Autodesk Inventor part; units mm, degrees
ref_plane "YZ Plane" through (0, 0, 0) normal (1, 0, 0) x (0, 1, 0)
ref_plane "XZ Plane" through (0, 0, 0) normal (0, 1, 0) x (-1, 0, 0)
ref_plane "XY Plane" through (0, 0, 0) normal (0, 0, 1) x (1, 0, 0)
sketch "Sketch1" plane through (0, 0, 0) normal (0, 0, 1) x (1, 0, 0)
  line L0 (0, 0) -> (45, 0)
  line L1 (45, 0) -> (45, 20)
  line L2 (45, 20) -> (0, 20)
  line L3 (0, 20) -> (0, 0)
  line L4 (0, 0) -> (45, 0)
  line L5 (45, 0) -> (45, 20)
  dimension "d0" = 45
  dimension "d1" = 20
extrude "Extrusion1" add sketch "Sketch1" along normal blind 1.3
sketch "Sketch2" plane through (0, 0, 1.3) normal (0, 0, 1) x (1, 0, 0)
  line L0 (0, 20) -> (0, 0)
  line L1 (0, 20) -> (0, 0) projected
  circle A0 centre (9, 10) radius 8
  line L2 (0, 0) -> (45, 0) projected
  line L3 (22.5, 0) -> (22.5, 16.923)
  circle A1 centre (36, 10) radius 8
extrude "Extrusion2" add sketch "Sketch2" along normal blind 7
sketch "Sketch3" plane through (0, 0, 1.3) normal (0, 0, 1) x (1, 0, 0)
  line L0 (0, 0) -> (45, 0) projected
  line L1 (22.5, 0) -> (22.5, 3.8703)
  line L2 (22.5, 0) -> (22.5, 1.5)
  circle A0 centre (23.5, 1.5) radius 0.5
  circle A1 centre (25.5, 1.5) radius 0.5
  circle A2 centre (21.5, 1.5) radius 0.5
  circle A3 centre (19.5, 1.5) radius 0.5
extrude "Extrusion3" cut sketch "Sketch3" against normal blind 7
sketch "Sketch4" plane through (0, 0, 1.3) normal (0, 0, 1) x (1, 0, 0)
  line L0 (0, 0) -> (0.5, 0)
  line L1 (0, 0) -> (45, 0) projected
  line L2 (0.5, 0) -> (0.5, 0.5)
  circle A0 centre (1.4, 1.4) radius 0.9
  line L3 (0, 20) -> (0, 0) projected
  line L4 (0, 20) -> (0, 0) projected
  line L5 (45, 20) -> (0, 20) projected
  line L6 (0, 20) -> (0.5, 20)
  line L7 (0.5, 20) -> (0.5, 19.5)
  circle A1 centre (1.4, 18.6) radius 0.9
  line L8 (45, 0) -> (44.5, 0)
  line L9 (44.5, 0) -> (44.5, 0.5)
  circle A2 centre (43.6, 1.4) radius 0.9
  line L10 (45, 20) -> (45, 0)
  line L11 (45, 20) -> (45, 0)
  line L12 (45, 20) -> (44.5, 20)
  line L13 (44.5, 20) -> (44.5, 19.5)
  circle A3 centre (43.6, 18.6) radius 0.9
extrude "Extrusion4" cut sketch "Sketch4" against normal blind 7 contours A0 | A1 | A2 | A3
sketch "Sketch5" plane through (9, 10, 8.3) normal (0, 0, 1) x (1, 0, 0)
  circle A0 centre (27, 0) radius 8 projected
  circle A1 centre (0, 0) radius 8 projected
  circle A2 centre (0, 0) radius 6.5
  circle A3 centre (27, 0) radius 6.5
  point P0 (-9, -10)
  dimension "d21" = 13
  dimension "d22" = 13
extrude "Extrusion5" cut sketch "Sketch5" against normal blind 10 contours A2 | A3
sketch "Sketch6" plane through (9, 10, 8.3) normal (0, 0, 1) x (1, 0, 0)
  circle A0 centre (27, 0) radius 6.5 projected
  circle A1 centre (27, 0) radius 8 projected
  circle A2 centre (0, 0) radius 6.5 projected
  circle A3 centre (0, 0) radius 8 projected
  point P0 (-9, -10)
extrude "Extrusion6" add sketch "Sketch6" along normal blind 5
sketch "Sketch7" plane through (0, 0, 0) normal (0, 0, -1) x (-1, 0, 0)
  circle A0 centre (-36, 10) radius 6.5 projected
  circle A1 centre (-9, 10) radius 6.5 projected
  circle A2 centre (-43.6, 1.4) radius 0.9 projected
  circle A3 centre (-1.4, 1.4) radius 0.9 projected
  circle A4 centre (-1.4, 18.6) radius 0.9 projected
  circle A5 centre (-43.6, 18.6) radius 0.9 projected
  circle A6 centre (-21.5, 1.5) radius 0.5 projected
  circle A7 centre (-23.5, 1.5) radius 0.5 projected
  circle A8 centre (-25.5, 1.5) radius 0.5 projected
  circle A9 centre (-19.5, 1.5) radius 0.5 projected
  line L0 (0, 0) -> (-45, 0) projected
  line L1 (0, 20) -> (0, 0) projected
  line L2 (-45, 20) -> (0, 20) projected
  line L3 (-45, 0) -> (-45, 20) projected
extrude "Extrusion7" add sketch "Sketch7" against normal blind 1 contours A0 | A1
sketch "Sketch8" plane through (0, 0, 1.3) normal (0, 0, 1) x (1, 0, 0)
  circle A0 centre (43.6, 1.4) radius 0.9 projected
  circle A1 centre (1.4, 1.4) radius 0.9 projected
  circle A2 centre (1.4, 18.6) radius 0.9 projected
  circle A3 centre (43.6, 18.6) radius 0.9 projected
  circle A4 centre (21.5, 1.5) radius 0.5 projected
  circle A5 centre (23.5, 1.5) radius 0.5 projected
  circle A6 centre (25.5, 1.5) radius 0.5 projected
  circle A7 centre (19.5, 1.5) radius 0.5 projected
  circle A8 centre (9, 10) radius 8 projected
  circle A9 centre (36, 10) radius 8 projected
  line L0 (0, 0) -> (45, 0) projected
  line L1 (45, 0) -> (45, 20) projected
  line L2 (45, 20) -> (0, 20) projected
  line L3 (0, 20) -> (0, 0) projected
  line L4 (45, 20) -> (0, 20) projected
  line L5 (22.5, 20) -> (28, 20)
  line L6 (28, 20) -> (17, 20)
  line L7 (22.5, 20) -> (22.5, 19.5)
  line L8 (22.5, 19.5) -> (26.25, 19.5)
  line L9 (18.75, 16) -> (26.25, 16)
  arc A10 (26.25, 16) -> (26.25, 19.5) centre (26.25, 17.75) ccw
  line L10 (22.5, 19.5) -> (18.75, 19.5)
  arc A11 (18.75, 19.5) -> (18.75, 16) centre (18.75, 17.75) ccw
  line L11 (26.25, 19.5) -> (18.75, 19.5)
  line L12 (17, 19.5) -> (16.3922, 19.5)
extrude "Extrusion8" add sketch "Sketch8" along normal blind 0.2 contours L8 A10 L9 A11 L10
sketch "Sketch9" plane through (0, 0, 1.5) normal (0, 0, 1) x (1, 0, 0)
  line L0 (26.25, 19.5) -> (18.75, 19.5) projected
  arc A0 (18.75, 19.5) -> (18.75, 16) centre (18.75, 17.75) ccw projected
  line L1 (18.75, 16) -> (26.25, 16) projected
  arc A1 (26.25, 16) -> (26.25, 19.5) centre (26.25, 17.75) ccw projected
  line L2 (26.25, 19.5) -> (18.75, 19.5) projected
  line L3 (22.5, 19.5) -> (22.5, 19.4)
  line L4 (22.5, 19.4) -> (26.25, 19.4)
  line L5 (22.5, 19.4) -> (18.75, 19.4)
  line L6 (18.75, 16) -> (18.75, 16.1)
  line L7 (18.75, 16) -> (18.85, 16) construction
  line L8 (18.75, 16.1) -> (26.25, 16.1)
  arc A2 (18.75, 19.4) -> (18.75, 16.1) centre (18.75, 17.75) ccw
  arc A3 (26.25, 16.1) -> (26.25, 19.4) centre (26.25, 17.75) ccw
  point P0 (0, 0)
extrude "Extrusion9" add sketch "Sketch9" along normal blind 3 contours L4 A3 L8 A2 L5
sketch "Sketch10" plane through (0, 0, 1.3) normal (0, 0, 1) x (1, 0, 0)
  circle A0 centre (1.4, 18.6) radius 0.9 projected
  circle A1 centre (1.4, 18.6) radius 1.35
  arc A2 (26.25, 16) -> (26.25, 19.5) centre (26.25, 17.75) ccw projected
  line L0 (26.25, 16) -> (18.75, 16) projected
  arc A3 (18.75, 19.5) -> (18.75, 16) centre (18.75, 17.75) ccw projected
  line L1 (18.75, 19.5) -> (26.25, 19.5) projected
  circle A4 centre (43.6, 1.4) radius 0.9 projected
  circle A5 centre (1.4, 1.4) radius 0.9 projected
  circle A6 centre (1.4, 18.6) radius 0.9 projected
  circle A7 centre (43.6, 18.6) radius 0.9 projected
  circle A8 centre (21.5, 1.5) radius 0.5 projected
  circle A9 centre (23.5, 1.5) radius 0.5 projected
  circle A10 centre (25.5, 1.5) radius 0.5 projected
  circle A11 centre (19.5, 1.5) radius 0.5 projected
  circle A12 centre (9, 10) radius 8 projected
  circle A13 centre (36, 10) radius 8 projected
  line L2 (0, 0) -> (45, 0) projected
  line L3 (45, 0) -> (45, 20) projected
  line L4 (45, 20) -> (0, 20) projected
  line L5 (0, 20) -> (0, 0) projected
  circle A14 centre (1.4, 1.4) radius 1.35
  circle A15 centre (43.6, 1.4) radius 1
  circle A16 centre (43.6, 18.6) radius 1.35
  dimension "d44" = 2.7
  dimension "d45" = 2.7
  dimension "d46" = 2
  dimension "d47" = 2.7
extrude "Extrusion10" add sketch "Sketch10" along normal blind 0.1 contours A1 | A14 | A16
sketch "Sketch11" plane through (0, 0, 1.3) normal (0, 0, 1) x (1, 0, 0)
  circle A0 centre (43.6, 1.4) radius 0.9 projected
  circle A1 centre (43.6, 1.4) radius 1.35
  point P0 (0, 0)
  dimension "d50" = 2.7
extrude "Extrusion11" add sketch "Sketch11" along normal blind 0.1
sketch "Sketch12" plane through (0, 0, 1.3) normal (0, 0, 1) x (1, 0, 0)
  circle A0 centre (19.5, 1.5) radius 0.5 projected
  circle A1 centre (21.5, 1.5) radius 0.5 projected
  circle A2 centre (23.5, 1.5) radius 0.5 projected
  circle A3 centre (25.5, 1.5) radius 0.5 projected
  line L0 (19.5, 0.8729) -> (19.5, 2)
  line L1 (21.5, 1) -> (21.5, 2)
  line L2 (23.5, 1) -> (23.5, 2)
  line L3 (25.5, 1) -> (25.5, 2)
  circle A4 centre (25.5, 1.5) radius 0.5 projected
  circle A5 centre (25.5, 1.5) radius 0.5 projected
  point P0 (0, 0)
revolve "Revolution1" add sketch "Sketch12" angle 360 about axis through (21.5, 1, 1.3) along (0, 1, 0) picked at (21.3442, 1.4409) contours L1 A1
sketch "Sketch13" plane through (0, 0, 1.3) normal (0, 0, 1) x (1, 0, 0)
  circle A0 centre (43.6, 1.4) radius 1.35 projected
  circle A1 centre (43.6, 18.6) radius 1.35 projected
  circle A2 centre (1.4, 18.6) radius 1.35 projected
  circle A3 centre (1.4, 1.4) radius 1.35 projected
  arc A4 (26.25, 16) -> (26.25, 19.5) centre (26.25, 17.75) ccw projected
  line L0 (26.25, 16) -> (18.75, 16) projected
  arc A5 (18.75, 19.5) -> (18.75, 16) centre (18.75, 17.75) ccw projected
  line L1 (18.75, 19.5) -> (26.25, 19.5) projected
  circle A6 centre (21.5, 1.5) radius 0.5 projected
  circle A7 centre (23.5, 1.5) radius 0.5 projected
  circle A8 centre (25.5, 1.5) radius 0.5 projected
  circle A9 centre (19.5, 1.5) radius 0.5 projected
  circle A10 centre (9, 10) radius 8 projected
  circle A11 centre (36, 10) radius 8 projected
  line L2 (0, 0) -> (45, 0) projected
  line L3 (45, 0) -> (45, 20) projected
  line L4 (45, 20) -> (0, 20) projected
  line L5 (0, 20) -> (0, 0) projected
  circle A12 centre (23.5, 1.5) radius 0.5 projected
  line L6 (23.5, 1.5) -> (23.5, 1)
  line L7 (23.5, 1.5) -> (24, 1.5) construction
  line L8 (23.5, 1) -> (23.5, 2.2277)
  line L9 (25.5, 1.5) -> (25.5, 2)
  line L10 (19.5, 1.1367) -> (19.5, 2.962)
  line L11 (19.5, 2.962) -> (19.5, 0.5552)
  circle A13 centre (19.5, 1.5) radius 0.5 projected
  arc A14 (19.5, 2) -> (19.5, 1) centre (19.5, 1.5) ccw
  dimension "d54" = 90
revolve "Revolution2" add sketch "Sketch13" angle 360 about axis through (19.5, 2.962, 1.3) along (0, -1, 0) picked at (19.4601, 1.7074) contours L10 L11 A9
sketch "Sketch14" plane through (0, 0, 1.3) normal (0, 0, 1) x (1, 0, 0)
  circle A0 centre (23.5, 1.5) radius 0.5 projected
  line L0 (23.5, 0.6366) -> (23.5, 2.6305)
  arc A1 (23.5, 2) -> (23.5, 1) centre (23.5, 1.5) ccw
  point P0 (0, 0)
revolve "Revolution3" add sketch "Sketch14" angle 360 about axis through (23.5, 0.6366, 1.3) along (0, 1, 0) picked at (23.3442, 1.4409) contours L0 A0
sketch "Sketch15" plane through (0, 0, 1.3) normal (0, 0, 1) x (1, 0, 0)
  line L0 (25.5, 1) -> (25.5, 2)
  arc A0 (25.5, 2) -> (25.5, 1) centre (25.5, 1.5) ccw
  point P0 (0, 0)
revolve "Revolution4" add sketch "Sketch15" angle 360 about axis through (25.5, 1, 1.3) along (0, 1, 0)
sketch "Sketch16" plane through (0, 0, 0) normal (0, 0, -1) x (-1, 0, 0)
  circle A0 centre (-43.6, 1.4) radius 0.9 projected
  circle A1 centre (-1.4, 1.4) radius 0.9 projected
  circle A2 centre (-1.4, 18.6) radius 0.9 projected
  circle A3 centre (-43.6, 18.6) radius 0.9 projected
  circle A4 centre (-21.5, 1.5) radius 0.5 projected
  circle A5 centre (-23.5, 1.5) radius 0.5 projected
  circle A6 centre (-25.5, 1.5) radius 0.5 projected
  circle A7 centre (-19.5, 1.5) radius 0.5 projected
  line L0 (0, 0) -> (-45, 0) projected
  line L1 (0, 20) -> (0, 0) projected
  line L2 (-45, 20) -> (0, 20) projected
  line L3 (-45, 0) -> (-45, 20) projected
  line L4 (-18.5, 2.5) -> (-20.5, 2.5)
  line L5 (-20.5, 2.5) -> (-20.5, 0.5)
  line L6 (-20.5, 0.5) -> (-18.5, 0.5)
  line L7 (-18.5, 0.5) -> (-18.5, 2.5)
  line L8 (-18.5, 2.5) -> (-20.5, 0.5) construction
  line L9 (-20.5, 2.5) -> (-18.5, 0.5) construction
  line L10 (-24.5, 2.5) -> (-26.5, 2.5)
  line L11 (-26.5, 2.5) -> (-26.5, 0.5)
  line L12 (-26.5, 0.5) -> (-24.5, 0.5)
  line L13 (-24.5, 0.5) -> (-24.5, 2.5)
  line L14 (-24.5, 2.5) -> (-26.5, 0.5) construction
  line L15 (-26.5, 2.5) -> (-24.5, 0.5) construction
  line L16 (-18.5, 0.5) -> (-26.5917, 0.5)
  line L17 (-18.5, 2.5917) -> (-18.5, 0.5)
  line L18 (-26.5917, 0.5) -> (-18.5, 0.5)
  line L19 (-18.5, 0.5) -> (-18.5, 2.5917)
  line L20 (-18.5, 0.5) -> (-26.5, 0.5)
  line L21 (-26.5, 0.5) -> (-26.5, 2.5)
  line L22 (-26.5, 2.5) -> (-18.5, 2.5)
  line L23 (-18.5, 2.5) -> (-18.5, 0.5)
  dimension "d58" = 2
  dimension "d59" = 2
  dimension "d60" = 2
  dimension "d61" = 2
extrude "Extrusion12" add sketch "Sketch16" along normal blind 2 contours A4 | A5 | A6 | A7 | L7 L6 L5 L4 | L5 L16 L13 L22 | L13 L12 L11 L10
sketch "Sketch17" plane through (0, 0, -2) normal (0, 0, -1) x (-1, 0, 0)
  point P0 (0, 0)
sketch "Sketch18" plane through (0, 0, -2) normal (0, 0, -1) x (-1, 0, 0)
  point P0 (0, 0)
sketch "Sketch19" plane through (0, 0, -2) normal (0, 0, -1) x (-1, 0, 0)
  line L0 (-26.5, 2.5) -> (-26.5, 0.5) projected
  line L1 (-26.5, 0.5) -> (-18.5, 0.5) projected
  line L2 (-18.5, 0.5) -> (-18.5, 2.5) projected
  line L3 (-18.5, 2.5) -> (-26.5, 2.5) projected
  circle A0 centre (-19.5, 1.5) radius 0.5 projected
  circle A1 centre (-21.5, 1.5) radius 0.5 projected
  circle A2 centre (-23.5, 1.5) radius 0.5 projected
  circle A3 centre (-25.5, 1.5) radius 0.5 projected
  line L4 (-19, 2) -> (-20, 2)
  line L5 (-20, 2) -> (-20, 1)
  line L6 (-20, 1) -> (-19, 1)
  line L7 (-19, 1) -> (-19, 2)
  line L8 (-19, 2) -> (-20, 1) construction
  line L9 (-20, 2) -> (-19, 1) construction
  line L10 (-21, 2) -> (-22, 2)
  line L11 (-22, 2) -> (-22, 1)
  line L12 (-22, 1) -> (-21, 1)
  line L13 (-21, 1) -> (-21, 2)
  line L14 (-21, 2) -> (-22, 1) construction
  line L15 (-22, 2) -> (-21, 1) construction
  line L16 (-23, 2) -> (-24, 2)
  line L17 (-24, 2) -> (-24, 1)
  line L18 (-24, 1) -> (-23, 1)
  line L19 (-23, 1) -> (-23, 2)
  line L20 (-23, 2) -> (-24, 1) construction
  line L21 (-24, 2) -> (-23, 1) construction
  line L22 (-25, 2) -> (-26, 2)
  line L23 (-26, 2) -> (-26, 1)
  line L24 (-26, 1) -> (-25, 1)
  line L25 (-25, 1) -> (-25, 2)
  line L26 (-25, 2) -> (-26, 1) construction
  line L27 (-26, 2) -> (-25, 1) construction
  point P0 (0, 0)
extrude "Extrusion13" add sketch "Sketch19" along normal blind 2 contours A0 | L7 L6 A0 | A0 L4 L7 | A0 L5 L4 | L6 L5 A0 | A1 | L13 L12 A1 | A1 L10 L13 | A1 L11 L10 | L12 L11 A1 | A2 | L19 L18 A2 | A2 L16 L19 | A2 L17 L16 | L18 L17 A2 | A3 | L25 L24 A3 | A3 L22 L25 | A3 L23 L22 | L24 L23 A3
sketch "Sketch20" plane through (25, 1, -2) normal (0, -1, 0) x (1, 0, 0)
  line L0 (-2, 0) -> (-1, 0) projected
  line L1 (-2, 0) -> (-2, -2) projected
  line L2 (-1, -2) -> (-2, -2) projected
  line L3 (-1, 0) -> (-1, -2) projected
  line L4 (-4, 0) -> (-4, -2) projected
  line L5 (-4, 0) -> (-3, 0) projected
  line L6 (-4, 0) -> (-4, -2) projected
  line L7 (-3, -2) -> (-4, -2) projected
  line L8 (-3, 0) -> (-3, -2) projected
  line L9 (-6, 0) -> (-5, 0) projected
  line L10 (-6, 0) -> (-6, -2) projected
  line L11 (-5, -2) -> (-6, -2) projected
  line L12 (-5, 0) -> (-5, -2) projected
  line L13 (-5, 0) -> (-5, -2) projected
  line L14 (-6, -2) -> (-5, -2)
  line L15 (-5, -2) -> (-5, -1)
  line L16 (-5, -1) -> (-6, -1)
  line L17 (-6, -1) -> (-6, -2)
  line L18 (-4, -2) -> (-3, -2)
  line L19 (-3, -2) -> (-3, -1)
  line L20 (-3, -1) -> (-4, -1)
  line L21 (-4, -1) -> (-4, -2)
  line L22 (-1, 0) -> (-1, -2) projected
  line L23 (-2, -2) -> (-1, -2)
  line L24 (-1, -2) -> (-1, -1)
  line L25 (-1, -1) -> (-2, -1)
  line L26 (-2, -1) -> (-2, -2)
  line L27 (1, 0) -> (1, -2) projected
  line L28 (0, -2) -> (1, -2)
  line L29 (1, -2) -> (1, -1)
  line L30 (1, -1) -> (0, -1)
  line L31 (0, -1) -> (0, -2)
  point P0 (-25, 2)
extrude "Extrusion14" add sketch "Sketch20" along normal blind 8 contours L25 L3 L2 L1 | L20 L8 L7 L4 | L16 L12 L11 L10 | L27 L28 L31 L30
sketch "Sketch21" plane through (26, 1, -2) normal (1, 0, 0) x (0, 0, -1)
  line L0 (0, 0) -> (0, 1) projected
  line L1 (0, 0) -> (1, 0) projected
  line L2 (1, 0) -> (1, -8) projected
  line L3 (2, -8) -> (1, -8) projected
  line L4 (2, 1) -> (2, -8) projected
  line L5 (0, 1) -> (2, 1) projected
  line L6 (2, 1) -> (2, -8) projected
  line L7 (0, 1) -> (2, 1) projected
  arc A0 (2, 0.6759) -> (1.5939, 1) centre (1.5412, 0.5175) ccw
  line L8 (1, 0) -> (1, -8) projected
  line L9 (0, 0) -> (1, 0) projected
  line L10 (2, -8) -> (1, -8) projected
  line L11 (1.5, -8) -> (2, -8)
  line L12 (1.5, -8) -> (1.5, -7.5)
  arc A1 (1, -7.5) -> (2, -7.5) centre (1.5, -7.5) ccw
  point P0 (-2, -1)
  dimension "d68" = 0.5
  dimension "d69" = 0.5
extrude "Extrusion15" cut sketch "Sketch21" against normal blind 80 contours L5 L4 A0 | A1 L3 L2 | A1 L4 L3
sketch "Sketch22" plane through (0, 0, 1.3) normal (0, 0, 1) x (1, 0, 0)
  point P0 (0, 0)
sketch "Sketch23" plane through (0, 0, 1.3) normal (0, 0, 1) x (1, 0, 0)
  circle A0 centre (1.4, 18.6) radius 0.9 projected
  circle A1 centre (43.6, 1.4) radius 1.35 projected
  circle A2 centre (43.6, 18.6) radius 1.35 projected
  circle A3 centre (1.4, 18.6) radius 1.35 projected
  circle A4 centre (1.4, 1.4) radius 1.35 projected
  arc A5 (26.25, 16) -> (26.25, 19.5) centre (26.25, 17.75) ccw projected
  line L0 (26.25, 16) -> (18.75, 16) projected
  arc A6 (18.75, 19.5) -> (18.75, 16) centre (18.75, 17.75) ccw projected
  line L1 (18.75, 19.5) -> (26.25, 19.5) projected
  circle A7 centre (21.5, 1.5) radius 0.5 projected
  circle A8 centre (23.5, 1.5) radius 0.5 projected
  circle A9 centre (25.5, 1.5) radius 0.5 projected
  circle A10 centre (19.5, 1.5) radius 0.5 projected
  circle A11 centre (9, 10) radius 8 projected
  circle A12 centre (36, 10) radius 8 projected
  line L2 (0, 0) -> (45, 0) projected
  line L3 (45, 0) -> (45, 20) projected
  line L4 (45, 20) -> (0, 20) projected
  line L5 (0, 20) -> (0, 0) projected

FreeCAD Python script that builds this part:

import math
import FreeCAD as App
import Part
import Sketcher

V = App.Vector
Q = App.Units.Quantity


def add_polygon(sketch, points):
    """Adds a closed chain of lines whose ends are joined by coincident constraints."""
    first, n = sketch.GeometryCount, len(points)
    for a, b in zip(points, points[1:] + points[:1]):
        sketch.addGeometry(Part.LineSegment(App.Vector(*a, 0), App.Vector(*b, 0)), False)
    for i in range(n):
        sketch.addConstraint(Sketcher.Constraint("Coincident", first + i, 2, first + (i + 1) % n, 1))

doc = App.newDocument("Part")
body = doc.addObject("PartDesign::Body", "Body")
body.AllowCompound = True

# Sketch on XY plane
sketch1 = body.newObject("Sketcher::SketchObject", "Sketch")
sketch1.AttachmentSupport = (doc.getObject("XY_Plane"), [""])
sketch1.MapMode = "FlatFace"
add_polygon(sketch1, [(0, 20), (0, 0), (45, 0), (45, 20)])  # lines 0-3
sketch1.addConstraint(Sketcher.Constraint("Vertical", 0))
sketch1.addConstraint(Sketcher.Constraint("Horizontal", 1))
sketch1.addConstraint(Sketcher.Constraint("Vertical", 2))
sketch1.addConstraint(Sketcher.Constraint("Horizontal", 3))
sketch1.addConstraint(Sketcher.Constraint("Coincident", 0, 2, -1, 1))
sketch1.addConstraint(Sketcher.Constraint("DistanceX", 1, 1, 1, 2, Q("45 mm")))
sketch1.addConstraint(Sketcher.Constraint("DistanceY", 0, 2, 0, 1, Q("20 mm")))
pad1 = body.newObject("PartDesign::Pad", "Pad")
pad1.Profile = sketch1
pad1.Length = 1.3

# Sketch on XY plane
sketch2 = body.newObject("Sketcher::SketchObject", "Sketch001")
sketch2.AttachmentSupport = (doc.getObject("XY_Plane"), [""])
sketch2.MapMode = "FlatFace"
sketch2.AttachmentOffset = App.Placement(V(0, 0, 1.3), App.Rotation())
sketch2.addGeometry(Part.Circle(V(9, 10, 0), V(0, 0, 1), 8), False)
sketch2.addGeometry(Part.Circle(V(36, 10, 0), V(0, 0, 1), 8), False)
sketch2.addConstraint(Sketcher.Constraint("Equal", 0, 1))
sketch2.addConstraint(Sketcher.Constraint("Horizontal", 0, 3, 1, 3))
sketch2.addConstraint(Sketcher.Constraint("Diameter", 0, Q("16 mm")))
sketch2.addConstraint(Sketcher.Constraint("DistanceX", -1, 1, 0, 3, Q("9 mm")))
sketch2.addConstraint(Sketcher.Constraint("DistanceY", -1, 1, 0, 3, Q("10 mm")))
sketch2.addConstraint(Sketcher.Constraint("DistanceX", -1, 1, 1, 3, Q("36 mm")))
pad2 = body.newObject("PartDesign::Pad", "Pad001")
pad2.Profile = sketch2
pad2.Length = 7

# Sketch on XY plane
sketch3 = body.newObject("Sketcher::SketchObject", "Sketch002")
sketch3.AttachmentSupport = (doc.getObject("XY_Plane"), [""])
sketch3.MapMode = "FlatFace"
sketch3.AttachmentOffset = App.Placement(V(0, 0, 1.3), App.Rotation())
sketch3.addGeometry(Part.Circle(V(23.5, 1.5, 0), V(0, 0, 1), 0.5), False)
sketch3.addGeometry(Part.Circle(V(25.5, 1.5, 0), V(0, 0, 1), 0.5), False)
sketch3.addGeometry(Part.Circle(V(21.5, 1.5, 0), V(0, 0, 1), 0.5), False)
sketch3.addGeometry(Part.Circle(V(19.5, 1.5, 0), V(0, 0, 1), 0.5), False)
sketch3.addConstraint(Sketcher.Constraint("Equal", 0, 1))
sketch3.addConstraint(Sketcher.Constraint("Equal", 1, 2))
sketch3.addConstraint(Sketcher.Constraint("Equal", 2, 3))
sketch3.addConstraint(Sketcher.Constraint("Horizontal", 0, 3, 1, 3))
sketch3.addConstraint(Sketcher.Constraint("Horizontal", 1, 3, 2, 3))
sketch3.addConstraint(Sketcher.Constraint("Horizontal", 2, 3, 3, 3))
sketch3.addConstraint(Sketcher.Constraint("Diameter", 0, Q("1 mm")))
sketch3.addConstraint(Sketcher.Constraint("DistanceX", 0, 3, 1, 3, Q("2 mm")))
sketch3.addConstraint(Sketcher.Constraint("DistanceX", 2, 3, 0, 3, Q("2 mm")))
sketch3.addConstraint(Sketcher.Constraint("DistanceX", 3, 3, 2, 3, Q("2 mm")))
sketch3.addConstraint(Sketcher.Constraint("DistanceX", -1, 1, 0, 3, Q("23.5 mm")))
sketch3.addConstraint(Sketcher.Constraint("DistanceY", -1, 1, 0, 3, Q("1.5 mm")))
pocket1 = body.newObject("PartDesign::Pocket", "Pocket")
pocket1.Profile = sketch3
pocket1.Length = 7

# Sketch on XY plane
sketch4 = body.newObject("Sketcher::SketchObject", "Sketch003")
sketch4.AttachmentSupport = (doc.getObject("XY_Plane"), [""])
sketch4.MapMode = "FlatFace"
sketch4.AttachmentOffset = App.Placement(V(0, 0, 1.3), App.Rotation())
sketch4.addGeometry(Part.Circle(V(1.4, 1.4, 0), V(0, 0, 1), 0.9), False)
sketch4.addGeometry(Part.Circle(V(1.4, 18.6, 0), V(0, 0, 1), 0.9), False)
sketch4.addGeometry(Part.Circle(V(43.6, 1.4, 0), V(0, 0, 1), 0.9), False)
sketch4.addGeometry(Part.Circle(V(43.6, 18.6, 0), V(0, 0, 1), 0.9), False)
sketch4.addConstraint(Sketcher.Constraint("Equal", 0, 1))
sketch4.addConstraint(Sketcher.Constraint("Equal", 1, 2))
sketch4.addConstraint(Sketcher.Constraint("Equal", 2, 3))
sketch4.addConstraint(Sketcher.Constraint("Horizontal", 0, 3, 2, 3))
sketch4.addConstraint(Sketcher.Constraint("Horizontal", 1, 3, 3, 3))
sketch4.addConstraint(Sketcher.Constraint("Vertical", 0, 3, 1, 3))
sketch4.addConstraint(Sketcher.Constraint("Vertical", 2, 3, 3, 3))
sketch4.addConstraint(Sketcher.Constraint("Diameter", 0, Q("1.8 mm")))
sketch4.addConstraint(Sketcher.Constraint("DistanceX", -1, 1, 0, 3, Q("1.4 mm")))
sketch4.addConstraint(Sketcher.Constraint("DistanceY", -1, 1, 0, 3, Q("1.4 mm")))
sketch4.addConstraint(Sketcher.Constraint("DistanceY", -1, 1, 1, 3, Q("18.6 mm")))
sketch4.addConstraint(Sketcher.Constraint("DistanceX", -1, 1, 2, 3, Q("43.6 mm")))
pocket2 = body.newObject("PartDesign::Pocket", "Pocket001")
pocket2.Profile = sketch4
pocket2.Length = 7

# Sketch on XY plane
sketch5 = body.newObject("Sketcher::SketchObject", "Sketch004")
sketch5.AttachmentSupport = (doc.getObject("XY_Plane"), [""])
sketch5.MapMode = "FlatFace"
sketch5.AttachmentOffset = App.Placement(V(0, 0, 8.3), App.Rotation())
sketch5.addGeometry(Part.Circle(V(9, 10, 0), V(0, 0, 1), 6), False)
sketch5.addGeometry(Part.Circle(V(36, 10, 0), V(0, 0, 1), 6), False)
sketch5.addConstraint(Sketcher.Constraint("Equal", 0, 1))
sketch5.addConstraint(Sketcher.Constraint("Horizontal", 0, 3, 1, 3))
sketch5.addConstraint(Sketcher.Constraint("Diameter", 0, Q("13 mm")))
sketch5.addConstraint(Sketcher.Constraint("DistanceX", -1, 1, 0, 3, Q("9 mm")))
sketch5.addConstraint(Sketcher.Constraint("DistanceY", -1, 1, 0, 3, Q("10 mm")))
sketch5.addConstraint(Sketcher.Constraint("DistanceX", -1, 1, 1, 3, Q("36 mm")))
pocket3 = body.newObject("PartDesign::Pocket", "Pocket002")
pocket3.Profile = sketch5
pocket3.Length = 10

# Sketch on XY plane
sketch6 = body.newObject("Sketcher::SketchObject", "Sketch005")
sketch6.AttachmentSupport = (doc.getObject("XY_Plane"), [""])
sketch6.MapMode = "FlatFace"
sketch6.AttachmentOffset = App.Placement(V(0, 0, 8.3), App.Rotation())
sketch6.addGeometry(Part.Circle(V(36, 10, 0), V(0, 0, 1), 8), False)
sketch6.addGeometry(Part.Circle(V(36, 10, 0), V(0, 0, 1), 6), False)
sketch6.addGeometry(Part.Circle(V(9, 10, 0), V(0, 0, 1), 8), False)
sketch6.addGeometry(Part.Circle(V(9, 10, 0), V(0, 0, 1), 6), False)
sketch6.addConstraint(Sketcher.Constraint("Coincident", 1, 3, 0, 3))
sketch6.addConstraint(Sketcher.Constraint("Coincident", 3, 3, 2, 3))
sketch6.addConstraint(Sketcher.Constraint("Equal", 0, 2))
sketch6.addConstraint(Sketcher.Constraint("Equal", 1, 3))
sketch6.addConstraint(Sketcher.Constraint("Horizontal", 1, 3, 2, 3))
sketch6.addConstraint(Sketcher.Constraint("Diameter", 0, Q("16 mm")))
sketch6.addConstraint(Sketcher.Constraint("Diameter", 1, Q("13 mm")))
sketch6.addConstraint(Sketcher.Constraint("DistanceX", -1, 1, 0, 3, Q("36 mm")))
sketch6.addConstraint(Sketcher.Constraint("DistanceY", -1, 1, 0, 3, Q("10 mm")))
sketch6.addConstraint(Sketcher.Constraint("DistanceX", -1, 1, 2, 3, Q("9 mm")))
pad3 = body.newObject("PartDesign::Pad", "Pad002")
pad3.Profile = sketch6
pad3.Length = 5

# Sketch on XY plane
sketch7 = body.newObject("Sketcher::SketchObject", "Sketch006")
sketch7.AttachmentSupport = (doc.getObject("XY_Plane"), [""])
sketch7.MapMode = "FlatFace"
sketch7.addGeometry(Part.Circle(V(36, 10, 0), V(0, 0, 1), 6), False)
sketch7.addGeometry(Part.Circle(V(9, 10, 0), V(0, 0, 1), 6), False)
sketch7.addConstraint(Sketcher.Constraint("Equal", 0, 1))
sketch7.addConstraint(Sketcher.Constraint("Horizontal", 0, 3, 1, 3))
sketch7.addConstraint(Sketcher.Constraint("Diameter", 0, Q("13 mm")))
sketch7.addConstraint(Sketcher.Constraint("DistanceX", -1, 1, 0, 3, Q("36 mm")))
sketch7.addConstraint(Sketcher.Constraint("DistanceY", -1, 1, 0, 3, Q("10 mm")))
sketch7.addConstraint(Sketcher.Constraint("DistanceX", -1, 1, 1, 3, Q("9 mm")))
pad4 = body.newObject("PartDesign::Pad", "Pad003")
pad4.Profile = sketch7
pad4.Length = 1

# Sketch on XY plane
sketch8 = body.newObject("Sketcher::SketchObject", "Sketch007")
sketch8.AttachmentSupport = (doc.getObject("XY_Plane"), [""])
sketch8.MapMode = "FlatFace"
sketch8.AttachmentOffset = App.Placement(V(0, 0, 1.3), App.Rotation())
sketch8.addGeometry(Part.LineSegment(V(26.2, 19.5, 0), V(18.8, 19.5, 0)), False)
sketch8.addGeometry(Part.ArcOfCircle(Part.Circle(V(18.8, 17.8, 0), V(0, 0, 1), 1.8), math.radians(90), math.radians(270)), False)
sketch8.addGeometry(Part.LineSegment(V(18.8, 16, 0), V(26.2, 16, 0)), False)
sketch8.addGeometry(Part.ArcOfCircle(Part.Circle(V(26.2, 17.8, 0), V(0, 0, 1), 1.8), math.radians(-90), math.radians(90)), False)
sketch8.addConstraint(Sketcher.Constraint("Tangent", 0, 2, 1, 1))
sketch8.addConstraint(Sketcher.Constraint("Tangent", 1, 2, 2, 1))
sketch8.addConstraint(Sketcher.Constraint("Tangent", 2, 2, 3, 1))
sketch8.addConstraint(Sketcher.Constraint("Tangent", 3, 2, 0, 1))
sketch8.addConstraint(Sketcher.Constraint("Horizontal", 0))
sketch8.addConstraint(Sketcher.Constraint("Horizontal", 2))
sketch8.addConstraint(Sketcher.Constraint("Radius", 1, Q("1.75 mm")))
sketch8.addConstraint(Sketcher.Constraint("DistanceX", 0, 2, 0, 1, Q("7.5 mm")))
sketch8.addConstraint(Sketcher.Constraint("DistanceY", -1, 1, 1, 2, Q("16 mm")))
sketch8.addConstraint(Sketcher.Constraint("DistanceX", -1, 1, 1, 3, Q("18.75 mm")))
pad5 = body.newObject("PartDesign::Pad", "Pad004")
pad5.Profile = sketch8
pad5.Length = 0.2

# Sketch on XY plane
sketch9 = body.newObject("Sketcher::SketchObject", "Sketch008")
sketch9.AttachmentSupport = (doc.getObject("XY_Plane"), [""])
sketch9.MapMode = "FlatFace"
sketch9.AttachmentOffset = App.Placement(V(0, 0, 1.5), App.Rotation())
sketch9.addGeometry(Part.LineSegment(V(26.2, 19.4, 0), V(18.8, 19.4, 0)), False)
sketch9.addGeometry(Part.ArcOfCircle(Part.Circle(V(18.8, 17.8, 0), V(0, 0, 1), 1.6), math.radians(90), math.radians(270)), False)
sketch9.addGeometry(Part.LineSegment(V(18.8, 16.1, 0), V(26.2, 16.1, 0)), False)
sketch9.addGeometry(Part.ArcOfCircle(Part.Circle(V(26.2, 17.8, 0), V(0, 0, 1), 1.6), math.radians(-90), math.radians(90)), False)
sketch9.addConstraint(Sketcher.Constraint("Tangent", 0, 2, 1, 1))
sketch9.addConstraint(Sketcher.Constraint("Tangent", 1, 2, 2, 1))
sketch9.addConstraint(Sketcher.Constraint("Tangent", 2, 2, 3, 1))
sketch9.addConstraint(Sketcher.Constraint("Tangent", 3, 2, 0, 1))
sketch9.addConstraint(Sketcher.Constraint("Horizontal", 0))
sketch9.addConstraint(Sketcher.Constraint("Horizontal", 2))
sketch9.addConstraint(Sketcher.Constraint("Radius", 1, Q("1.65 mm")))
sketch9.addConstraint(Sketcher.Constraint("DistanceX", 0, 2, 0, 1, Q("7.5 mm")))
sketch9.addConstraint(Sketcher.Constraint("DistanceY", -1, 1, 0, 2, Q("19.4 mm")))
sketch9.addConstraint(Sketcher.Constraint("DistanceX", -1, 1, 1, 3, Q("18.75 mm")))
pad6 = body.newObject("PartDesign::Pad", "Pad005")
pad6.Profile = sketch9
pad6.Length = 3

# Sketch on XY plane
sketch10 = body.newObject("Sketcher::SketchObject", "Sketch009")
sketch10.AttachmentSupport = (doc.getObject("XY_Plane"), [""])
sketch10.MapMode = "FlatFace"
sketch10.AttachmentOffset = App.Placement(V(0, 0, 1.3), App.Rotation())
sketch10.addGeometry(Part.Circle(V(1.4, 18.6, 0), V(0, 0, 1), 1.4), False)
sketch10.addGeometry(Part.Circle(V(1.4, 18.6, 0), V(0, 0, 1), 0.9), False)
sketch10.addGeometry(Part.Circle(V(1.4, 1.4, 0), V(0, 0, 1), 1.4), False)
sketch10.addGeometry(Part.Circle(V(1.4, 1.4, 0), V(0, 0, 1), 0.9), False)
sketch10.addGeometry(Part.Circle(V(43.6, 18.6, 0), V(0, 0, 1), 1.4), False)
sketch10.addGeometry(Part.Circle(V(43.6, 18.6, 0), V(0, 0, 1), 0.9), False)
sketch10.addConstraint(Sketcher.Constraint("Coincident", 1, 3, 0, 3))
sketch10.addConstraint(Sketcher.Constraint("Coincident", 3, 3, 2, 3))
sketch10.addConstraint(Sketcher.Constraint("Coincident", 5, 3, 4, 3))
sketch10.addConstraint(Sketcher.Constraint("Equal", 0, 2))
sketch10.addConstraint(Sketcher.Constraint("Equal", 1, 3))
sketch10.addConstraint(Sketcher.Constraint("Equal", 2, 4))
sketch10.addConstraint(Sketcher.Constraint("Equal", 3, 5))
sketch10.addConstraint(Sketcher.Constraint("Horizontal", 1, 3, 4, 3))
sketch10.addConstraint(Sketcher.Constraint("Vertical", 1, 3, 2, 3))
sketch10.addConstraint(Sketcher.Constraint("Diameter", 0, Q("2.7 mm")))
sketch10.addConstraint(Sketcher.Constraint("Diameter", 1, Q("1.8 mm")))
sketch10.addConstraint(Sketcher.Constraint("DistanceX", -1, 1, 0, 3, Q("1.4 mm")))
sketch10.addConstraint(Sketcher.Constraint("DistanceY", -1, 1, 0, 3, Q("18.6 mm")))
sketch10.addConstraint(Sketcher.Constraint("DistanceY", -1, 1, 2, 3, Q("1.4 mm")))
sketch10.addConstraint(Sketcher.Constraint("DistanceX", -1, 1, 4, 3, Q("43.6 mm")))
pad7 = body.newObject("PartDesign::Pad", "Pad006")
pad7.Profile = sketch10
pad7.Length = 0.1

# Sketch on XY plane
sketch11 = body.newObject("Sketcher::SketchObject", "Sketch010")
sketch11.AttachmentSupport = (doc.getObject("XY_Plane"), [""])
sketch11.MapMode = "FlatFace"
sketch11.AttachmentOffset = App.Placement(V(0, 0, 1.3), App.Rotation())
sketch11.addGeometry(Part.Circle(V(43.6, 1.4, 0), V(0, 0, 1), 1.4), False)
sketch11.addGeometry(Part.Circle(V(43.6, 1.4, 0), V(0, 0, 1), 0.9), False)
sketch11.addConstraint(Sketcher.Constraint("Coincident", 1, 3, 0, 3))
sketch11.addConstraint(Sketcher.Constraint("Diameter", 0, Q("2.7 mm")))
sketch11.addConstraint(Sketcher.Constraint("Diameter", 1, Q("1.8 mm")))
sketch11.addConstraint(Sketcher.Constraint("DistanceX", -1, 1, 0, 3, Q("43.6 mm")))
sketch11.addConstraint(Sketcher.Constraint("DistanceY", -1, 1, 0, 3, Q("1.4 mm")))
pad8 = body.newObject("PartDesign::Pad", "Pad007")
pad8.Profile = sketch11
pad8.Length = 0.1

# Sketch on XY plane
sketch12 = body.newObject("Sketcher::SketchObject", "Sketch011")
sketch12.AttachmentSupport = (doc.getObject("XY_Plane"), [""])
sketch12.MapMode = "FlatFace"
sketch12.AttachmentOffset = App.Placement(V(0, 0, 1.3), App.Rotation())
sketch12.addGeometry(Part.LineSegment(V(21.5, 1, 0), V(21.5, 2, 0)), False)
sketch12.addGeometry(Part.ArcOfCircle(Part.Circle(V(21.5, 1.5, 0), V(0, 0, 1), 0.5), math.radians(90), math.radians(270)), False)
sketch12.addGeometry(Part.LineSegment(V(21.5, 1, 0), V(21.5, 2, 0)), True)  # axis
sketch12.addConstraint(Sketcher.Constraint("Coincident", 0, 1, 1, 2))
sketch12.addConstraint(Sketcher.Constraint("Coincident", 1, 1, 0, 2))
sketch12.addConstraint(Sketcher.Constraint("Vertical", 0))
sketch12.addConstraint(Sketcher.Constraint("Vertical", 2))
sketch12.addConstraint(Sketcher.Constraint("Coincident", 2, 1, 0, 1))
sketch12.addConstraint(Sketcher.Constraint("Vertical", 1, 3, 0, 1))
sketch12.addConstraint(Sketcher.Constraint("Equal", 0, 2))
sketch12.addConstraint(Sketcher.Constraint("Radius", 1, Q("0.5 mm")))
sketch12.addConstraint(Sketcher.Constraint("DistanceY", -1, 1, 0, 1, Q("1 mm")))
sketch12.addConstraint(Sketcher.Constraint("DistanceX", -1, 1, 1, 3, Q("21.5 mm")))
revolution = body.newObject("PartDesign::Revolution", "Revolution")
revolution.Profile = sketch12
revolution.ReferenceAxis = (sketch12, ["Axis0"])
revolution.Angle = 360

# Sketch on XY plane
sketch13 = body.newObject("Sketcher::SketchObject", "Sketch012")
sketch13.AttachmentSupport = (doc.getObject("XY_Plane"), [""])
sketch13.MapMode = "FlatFace"
sketch13.AttachmentOffset = App.Placement(V(0, 0, 1.3), App.Rotation())
sketch13.addGeometry(Part.LineSegment(V(19.5, 1, 0), V(19.5, 2, 0)), False)
sketch13.addGeometry(Part.ArcOfCircle(Part.Circle(V(19.5, 1.5, 0), V(0, 0, 1), 0.5), math.radians(90), math.radians(270)), False)
sketch13.addGeometry(Part.LineSegment(V(19.5, 2, 0), V(19.5, 1, 0)), True)  # axis
sketch13.addConstraint(Sketcher.Constraint("Coincident", 0, 1, 1, 2))
sketch13.addConstraint(Sketcher.Constraint("Coincident", 1, 1, 0, 2))
sketch13.addConstraint(Sketcher.Constraint("Vertical", 0))
sketch13.addConstraint(Sketcher.Constraint("Vertical", 2))
sketch13.addConstraint(Sketcher.Constraint("Coincident", 2, 1, 1, 1))
sketch13.addConstraint(Sketcher.Constraint("Vertical", 1, 3, 0, 1))
sketch13.addConstraint(Sketcher.Constraint("Equal", 0, 2))
sketch13.addConstraint(Sketcher.Constraint("Radius", 1, Q("0.5 mm")))
sketch13.addConstraint(Sketcher.Constraint("DistanceY", -1, 1, 0, 1, Q("1 mm")))
sketch13.addConstraint(Sketcher.Constraint("DistanceX", -1, 1, 1, 3, Q("19.5 mm")))
revolution2 = body.newObject("PartDesign::Revolution", "Revolution001")
revolution2.Profile = sketch13
revolution2.ReferenceAxis = (sketch13, ["Axis0"])
revolution2.Angle = 360

# Sketch on XY plane
sketch14 = body.newObject("Sketcher::SketchObject", "Sketch013")
sketch14.AttachmentSupport = (doc.getObject("XY_Plane"), [""])
sketch14.MapMode = "FlatFace"
sketch14.AttachmentOffset = App.Placement(V(0, 0, 1.3), App.Rotation())
sketch14.addGeometry(Part.LineSegment(V(23.5, 1, 0), V(23.5, 2, 0)), False)
sketch14.addGeometry(Part.ArcOfCircle(Part.Circle(V(23.5, 1.5, 0), V(0, 0, 1), 0.5), math.radians(90), math.radians(270)), False)
sketch14.addGeometry(Part.LineSegment(V(23.5, 1, 0), V(23.5, 2, 0)), True)  # axis
sketch14.addConstraint(Sketcher.Constraint("Coincident", 0, 1, 1, 2))
sketch14.addConstraint(Sketcher.Constraint("Coincident", 1, 1, 0, 2))
sketch14.addConstraint(Sketcher.Constraint("Vertical", 0))
sketch14.addConstraint(Sketcher.Constraint("Vertical", 2))
sketch14.addConstraint(Sketcher.Constraint("Coincident", 2, 1, 0, 1))
sketch14.addConstraint(Sketcher.Constraint("Vertical", 1, 3, 0, 1))
sketch14.addConstraint(Sketcher.Constraint("Equal", 0, 2))
sketch14.addConstraint(Sketcher.Constraint("Radius", 1, Q("0.5 mm")))
sketch14.addConstraint(Sketcher.Constraint("DistanceY", -1, 1, 0, 1, Q("1 mm")))
sketch14.addConstraint(Sketcher.Constraint("DistanceX", -1, 1, 1, 3, Q("23.5 mm")))
revolution3 = body.newObject("PartDesign::Revolution", "Revolution002")
revolution3.Profile = sketch14
revolution3.ReferenceAxis = (sketch14, ["Axis0"])
revolution3.Angle = 360

# Sketch on XY plane
sketch15 = body.newObject("Sketcher::SketchObject", "Sketch014")
sketch15.AttachmentSupport = (doc.getObject("XY_Plane"), [""])
sketch15.MapMode = "FlatFace"
sketch15.AttachmentOffset = App.Placement(V(0, 0, 1.3), App.Rotation())
sketch15.addGeometry(Part.ArcOfCircle(Part.Circle(V(25.5, 1.5, 0), V(0, 0, 1), 0.5), math.radians(90), math.radians(270)), False)
sketch15.addGeometry(Part.LineSegment(V(25.5, 1, 0), V(25.5, 2, 0)), False)
sketch15.addGeometry(Part.LineSegment(V(25.5, 1, 0), V(25.5, 2, 0)), True)  # axis
sketch15.addConstraint(Sketcher.Constraint("Coincident", 0, 1, 1, 2))
sketch15.addConstraint(Sketcher.Constraint("Coincident", 1, 1, 0, 2))
sketch15.addConstraint(Sketcher.Constraint("Vertical", 1))
sketch15.addConstraint(Sketcher.Constraint("Vertical", 2))
sketch15.addConstraint(Sketcher.Constraint("Coincident", 2, 1, 1, 1))
sketch15.addConstraint(Sketcher.Constraint("Equal", 1, 2))
sketch15.addConstraint(Sketcher.Constraint("Radius", 0, Q("0.5 mm")))
sketch15.addConstraint(Sketcher.Constraint("DistanceY", -1, 1, 0, 1, Q("2 mm")))
sketch15.addConstraint(Sketcher.Constraint("DistanceX", -1, 1, 0, 3, Q("25.5 mm")))
sketch15.addConstraint(Sketcher.Constraint("DistanceX", -1, 1, 0, 1, Q("25.5 mm")))
revolution4 = body.newObject("PartDesign::Revolution", "Revolution003")
revolution4.Profile = sketch15
revolution4.ReferenceAxis = (sketch15, ["Axis0"])
revolution4.Angle = 360

# Sketch on XY plane
sketch16 = body.newObject("Sketcher::SketchObject", "Sketch015")
sketch16.AttachmentSupport = (doc.getObject("XY_Plane"), [""])
sketch16.MapMode = "FlatFace"
add_polygon(sketch16, [(18.5, 0.5), (18.5, 2.5), (26.5, 2.5), (26.5, 0.5)])  # lines 0-3
sketch16.addConstraint(Sketcher.Constraint("Vertical", 0))
sketch16.addConstraint(Sketcher.Constraint("Horizontal", 1))
sketch16.addConstraint(Sketcher.Constraint("Vertical", 2))
sketch16.addConstraint(Sketcher.Constraint("Horizontal", 3))
sketch16.addConstraint(Sketcher.Constraint("DistanceY", 0, 1, 0, 2, Q("2 mm")))
sketch16.addConstraint(Sketcher.Constraint("DistanceX", 1, 1, 1, 2, Q("8 mm")))
sketch16.addConstraint(Sketcher.Constraint("DistanceX", -1, 1, 0, 2, Q("18.5 mm")))
sketch16.addConstraint(Sketcher.Constraint("DistanceY", -1, 1, 0, 2, Q("2.5 mm")))
pad9 = body.newObject("PartDesign::Pad", "Pad008")
pad9.Profile = sketch16
pad9.Length = 2
pad9.Reversed = True

# Sketch on XY plane
sketch17 = body.newObject("Sketcher::SketchObject", "Sketch016")
sketch17.AttachmentSupport = (doc.getObject("XY_Plane"), [""])
sketch17.MapMode = "FlatFace"
sketch17.AttachmentOffset = App.Placement(V(0, 0, -2), App.Rotation())
add_polygon(sketch17, [(19, 1), (19, 2), (20, 2), (20, 1)])  # lines 0-3
add_polygon(sketch17, [(21, 1), (21, 2), (22, 2), (22, 1)])  # lines 4-7
add_polygon(sketch17, [(23, 1), (23, 2), (24, 2), (24, 1)])  # lines 8-11
add_polygon(sketch17, [(25, 1), (25, 2), (26, 2), (26, 1)])  # lines 12-15
sketch17.addConstraint(Sketcher.Constraint("Vertical", 0))
sketch17.addConstraint(Sketcher.Constraint("Horizontal", 1))
sketch17.addConstraint(Sketcher.Constraint("Vertical", 2))
sketch17.addConstraint(Sketcher.Constraint("Horizontal", 3))
sketch17.addConstraint(Sketcher.Constraint("Vertical", 4))
sketch17.addConstraint(Sketcher.Constraint("Horizontal", 5))
sketch17.addConstraint(Sketcher.Constraint("Vertical", 6))
sketch17.addConstraint(Sketcher.Constraint("Horizontal", 7))
sketch17.addConstraint(Sketcher.Constraint("Vertical", 8))
sketch17.addConstraint(Sketcher.Constraint("Horizontal", 9))
sketch17.addConstraint(Sketcher.Constraint("Vertical", 10))
sketch17.addConstraint(Sketcher.Constraint("Horizontal", 11))
sketch17.addConstraint(Sketcher.Constraint("Vertical", 12))
sketch17.addConstraint(Sketcher.Constraint("Horizontal", 13))
sketch17.addConstraint(Sketcher.Constraint("Vertical", 14))
sketch17.addConstraint(Sketcher.Constraint("Horizontal", 15))
sketch17.addConstraint(Sketcher.Constraint("Horizontal", 1, 2, 4, 2))
sketch17.addConstraint(Sketcher.Constraint("Horizontal", 3, 2, 6, 2))
sketch17.addConstraint(Sketcher.Constraint("Horizontal", 5, 2, 8, 2))
sketch17.addConstraint(Sketcher.Constraint("Horizontal", 7, 2, 10, 2))
sketch17.addConstraint(Sketcher.Constraint("Horizontal", 9, 2, 12, 2))
sketch17.addConstraint(Sketcher.Constraint("Horizontal", 11, 2, 14, 2))
sketch17.addConstraint(Sketcher.Constraint("Equal", 3, 5))
sketch17.addConstraint(Sketcher.Constraint("Equal", 7, 9))
sketch17.addConstraint(Sketcher.Constraint("Equal", 11, 13))
sketch17.addConstraint(Sketcher.Constraint("Equal", 15, 0))
sketch17.addConstraint(Sketcher.Constraint("DistanceX", 1, 1, 1, 2, Q("1 mm")))
sketch17.addConstraint(Sketcher.Constraint("DistanceX", -1, 1, 0, 2, Q("19 mm")))
sketch17.addConstraint(Sketcher.Constraint("DistanceY", -1, 1, 0, 2, Q("2 mm")))
sketch17.addConstraint(Sketcher.Constraint("DistanceX", -1, 1, 4, 2, Q("21 mm")))
sketch17.addConstraint(Sketcher.Constraint("DistanceX", -1, 1, 8, 2, Q("23 mm")))
sketch17.addConstraint(Sketcher.Constraint("DistanceX", -1, 1, 12, 2, Q("25 mm")))
pad10 = body.newObject("PartDesign::Pad", "Pad009")
pad10.Profile = sketch17
pad10.Length = 2
pad10.Reversed = True

# Sketch on XZ plane
sketch18 = body.newObject("Sketcher::SketchObject", "Sketch017")
sketch18.AttachmentSupport = (doc.getObject("XZ_Plane"), [""])
sketch18.MapMode = "FlatFace"
sketch18.AttachmentOffset = App.Placement(V(0, 0, -1), App.Rotation())
add_polygon(sketch18, [(24, -3), (23, -3), (23, -4), (24, -4)])  # lines 0-3
add_polygon(sketch18, [(22, -3), (21, -3), (21, -4), (22, -4)])  # lines 4-7
add_polygon(sketch18, [(20, -3), (19, -3), (19, -4), (20, -4)])  # lines 8-11
add_polygon(sketch18, [(26, -4), (26, -3), (25, -3), (25, -4)])  # lines 12-15
sketch18.addConstraint(Sketcher.Constraint("Horizontal", 0))
sketch18.addConstraint(Sketcher.Constraint("Vertical", 1))
sketch18.addConstraint(Sketcher.Constraint("Horizontal", 2))
sketch18.addConstraint(Sketcher.Constraint("Vertical", 3))
sketch18.addConstraint(Sketcher.Constraint("Horizontal", 4))
sketch18.addConstraint(Sketcher.Constraint("Vertical", 5))
sketch18.addConstraint(Sketcher.Constraint("Horizontal", 6))
sketch18.addConstraint(Sketcher.Constraint("Vertical", 7))
sketch18.addConstraint(Sketcher.Constraint("Horizontal", 8))
sketch18.addConstraint(Sketcher.Constraint("Vertical", 9))
sketch18.addConstraint(Sketcher.Constraint("Horizontal", 10))
sketch18.addConstraint(Sketcher.Constraint("Vertical", 11))
sketch18.addConstraint(Sketcher.Constraint("Vertical", 12))
sketch18.addConstraint(Sketcher.Constraint("Horizontal", 13))
sketch18.addConstraint(Sketcher.Constraint("Vertical", 14))
sketch18.addConstraint(Sketcher.Constraint("Horizontal", 15))
sketch18.addConstraint(Sketcher.Constraint("Horizontal", 3, 2, 4, 2))
sketch18.addConstraint(Sketcher.Constraint("Horizontal", 2, 2, 5, 2))
sketch18.addConstraint(Sketcher.Constraint("Horizontal", 7, 2, 8, 2))
sketch18.addConstraint(Sketcher.Constraint("Horizontal", 6, 2, 9, 2))
sketch18.addConstraint(Sketcher.Constraint("Horizontal", 11, 2, 12, 2))
sketch18.addConstraint(Sketcher.Constraint("Horizontal", 10, 2, 14, 2))
sketch18.addConstraint(Sketcher.Constraint("Equal", 2, 4))
sketch18.addConstraint(Sketcher.Constraint("Equal", 6, 8))
sketch18.addConstraint(Sketcher.Constraint("Equal", 10, 13))
sketch18.addConstraint(Sketcher.Constraint("Equal", 15, 1))
sketch18.addConstraint(Sketcher.Constraint("DistanceX", 0, 2, 0, 1, Q("1 mm")))
sketch18.addConstraint(Sketcher.Constraint("DistanceX", -1, 1, 0, 2, Q("23 mm")))
sketch18.addConstraint(Sketcher.Constraint("DistanceY", 0, 2, -1, 1, Q("3 mm")))
sketch18.addConstraint(Sketcher.Constraint("DistanceX", -1, 1, 4, 2, Q("21 mm")))
sketch18.addConstraint(Sketcher.Constraint("DistanceX", -1, 1, 8, 2, Q("19 mm")))
sketch18.addConstraint(Sketcher.Constraint("DistanceX", -1, 1, 12, 2, Q("26 mm")))
pad11 = body.newObject("PartDesign::Pad", "Pad010")
pad11.Profile = sketch18
pad11.Length = 8

# Sketch on YZ plane
sketch19 = body.newObject("Sketcher::SketchObject", "Sketch018")
sketch19.AttachmentSupport = (doc.getObject("YZ_Plane"), [""])
sketch19.MapMode = "FlatFace"
sketch19.AttachmentOffset = App.Placement(V(0, 0, 26), App.Rotation())
sketch19.addGeometry(Part.LineSegment(V(2, -4, 0), V(2, -3.59, 0)), False)
sketch19.addGeometry(Part.ArcOfCircle(Part.Circle(V(1.52, -3.54, 0), V(0, 0, 1), 0.49), math.radians(-71), math.radians(-6)), False)
sketch19.addGeometry(Part.LineSegment(V(1.68, -4, 0), V(2, -4, 0)), False)
sketch19.addGeometry(Part.ArcOfCircle(Part.Circle(V(-6.5, -3.5, 0), V(0, 0, 1), 0.5), math.radians(90), math.radians(180)), False)
sketch19.addGeometry(Part.LineSegment(V(-6.5, -3, 0), V(-7, -3, 0)), False)
sketch19.addGeometry(Part.LineSegment(V(-7, -3, 0), V(-7, -3.5, 0)), False)
sketch19.addGeometry(Part.ArcOfCircle(Part.Circle(V(-6.5, -3.5, 0), V(0, 0, 1), 0.5), math.radians(180), math.radians(270)), False)
sketch19.addGeometry(Part.LineSegment(V(-7, -3.5, 0), V(-7, -4, 0)), False)
sketch19.addGeometry(Part.LineSegment(V(-7, -4, 0), V(-6.5, -4, 0)), False)
sketch19.addConstraint(Sketcher.Constraint("Coincident", 0, 2, 1, 2))
sketch19.addConstraint(Sketcher.Constraint("Coincident", 1, 1, 2, 1))
sketch19.addConstraint(Sketcher.Constraint("Coincident", 2, 2, 0, 1))
sketch19.addConstraint(Sketcher.Constraint("Tangent", 3, 1, 4, 1))
sketch19.addConstraint(Sketcher.Constraint("Coincident", 4, 2, 5, 1))
sketch19.addConstraint(Sketcher.Constraint("Tangent", 5, 2, 3, 2))
sketch19.addConstraint(Sketcher.Constraint("Tangent", 6, 1, 7, 1))
sketch19.addConstraint(Sketcher.Constraint("Coincident", 7, 2, 8, 1))
sketch19.addConstraint(Sketcher.Constraint("Tangent", 8, 2, 6, 2))
sketch19.addConstraint(Sketcher.Constraint("Vertical", 0))
sketch19.addConstraint(Sketcher.Constraint("Horizontal", 2))
sketch19.addConstraint(Sketcher.Constraint("Horizontal", 4))
sketch19.addConstraint(Sketcher.Constraint("Vertical", 5))
sketch19.addConstraint(Sketcher.Constraint("Vertical", 7))
sketch19.addConstraint(Sketcher.Constraint("Horizontal", 8))
sketch19.addConstraint(Sketcher.Constraint("Coincident", 6, 3, 3, 3))
sketch19.addConstraint(Sketcher.Constraint("Equal", 3, 6))
sketch19.addConstraint(Sketcher.Constraint("Horizontal", 2, 2, 7, 2))
sketch19.addConstraint(Sketcher.Constraint("Radius", 3, Q("0.5 mm")))
sketch19.addConstraint(Sketcher.Constraint("DistanceX", -1, 1, 0, 2, Q("2 mm")))
sketch19.addConstraint(Sketcher.Constraint("DistanceY", 1, 1, -1, 1, Q("4 mm")))
sketch19.addConstraint(Sketcher.Constraint("DistanceX", 4, 2, -1, 1, Q("7 mm")))
sketch19.addConstraint(Sketcher.Constraint("Radius", 1, Q("0.4854 mm")))
sketch19.addConstraint(Sketcher.Constraint("DistanceX", 2, 1, 2, 2, Q("0.324 mm")))
sketch19.addConstraint(Sketcher.Constraint("DistanceY", 0, 1, 0, 2, Q("0.406 mm")))
pocket4 = body.newObject("PartDesign::Pocket", "Pocket003")
pocket4.Profile = sketch19
pocket4.Length = 80

doc.recompute()
